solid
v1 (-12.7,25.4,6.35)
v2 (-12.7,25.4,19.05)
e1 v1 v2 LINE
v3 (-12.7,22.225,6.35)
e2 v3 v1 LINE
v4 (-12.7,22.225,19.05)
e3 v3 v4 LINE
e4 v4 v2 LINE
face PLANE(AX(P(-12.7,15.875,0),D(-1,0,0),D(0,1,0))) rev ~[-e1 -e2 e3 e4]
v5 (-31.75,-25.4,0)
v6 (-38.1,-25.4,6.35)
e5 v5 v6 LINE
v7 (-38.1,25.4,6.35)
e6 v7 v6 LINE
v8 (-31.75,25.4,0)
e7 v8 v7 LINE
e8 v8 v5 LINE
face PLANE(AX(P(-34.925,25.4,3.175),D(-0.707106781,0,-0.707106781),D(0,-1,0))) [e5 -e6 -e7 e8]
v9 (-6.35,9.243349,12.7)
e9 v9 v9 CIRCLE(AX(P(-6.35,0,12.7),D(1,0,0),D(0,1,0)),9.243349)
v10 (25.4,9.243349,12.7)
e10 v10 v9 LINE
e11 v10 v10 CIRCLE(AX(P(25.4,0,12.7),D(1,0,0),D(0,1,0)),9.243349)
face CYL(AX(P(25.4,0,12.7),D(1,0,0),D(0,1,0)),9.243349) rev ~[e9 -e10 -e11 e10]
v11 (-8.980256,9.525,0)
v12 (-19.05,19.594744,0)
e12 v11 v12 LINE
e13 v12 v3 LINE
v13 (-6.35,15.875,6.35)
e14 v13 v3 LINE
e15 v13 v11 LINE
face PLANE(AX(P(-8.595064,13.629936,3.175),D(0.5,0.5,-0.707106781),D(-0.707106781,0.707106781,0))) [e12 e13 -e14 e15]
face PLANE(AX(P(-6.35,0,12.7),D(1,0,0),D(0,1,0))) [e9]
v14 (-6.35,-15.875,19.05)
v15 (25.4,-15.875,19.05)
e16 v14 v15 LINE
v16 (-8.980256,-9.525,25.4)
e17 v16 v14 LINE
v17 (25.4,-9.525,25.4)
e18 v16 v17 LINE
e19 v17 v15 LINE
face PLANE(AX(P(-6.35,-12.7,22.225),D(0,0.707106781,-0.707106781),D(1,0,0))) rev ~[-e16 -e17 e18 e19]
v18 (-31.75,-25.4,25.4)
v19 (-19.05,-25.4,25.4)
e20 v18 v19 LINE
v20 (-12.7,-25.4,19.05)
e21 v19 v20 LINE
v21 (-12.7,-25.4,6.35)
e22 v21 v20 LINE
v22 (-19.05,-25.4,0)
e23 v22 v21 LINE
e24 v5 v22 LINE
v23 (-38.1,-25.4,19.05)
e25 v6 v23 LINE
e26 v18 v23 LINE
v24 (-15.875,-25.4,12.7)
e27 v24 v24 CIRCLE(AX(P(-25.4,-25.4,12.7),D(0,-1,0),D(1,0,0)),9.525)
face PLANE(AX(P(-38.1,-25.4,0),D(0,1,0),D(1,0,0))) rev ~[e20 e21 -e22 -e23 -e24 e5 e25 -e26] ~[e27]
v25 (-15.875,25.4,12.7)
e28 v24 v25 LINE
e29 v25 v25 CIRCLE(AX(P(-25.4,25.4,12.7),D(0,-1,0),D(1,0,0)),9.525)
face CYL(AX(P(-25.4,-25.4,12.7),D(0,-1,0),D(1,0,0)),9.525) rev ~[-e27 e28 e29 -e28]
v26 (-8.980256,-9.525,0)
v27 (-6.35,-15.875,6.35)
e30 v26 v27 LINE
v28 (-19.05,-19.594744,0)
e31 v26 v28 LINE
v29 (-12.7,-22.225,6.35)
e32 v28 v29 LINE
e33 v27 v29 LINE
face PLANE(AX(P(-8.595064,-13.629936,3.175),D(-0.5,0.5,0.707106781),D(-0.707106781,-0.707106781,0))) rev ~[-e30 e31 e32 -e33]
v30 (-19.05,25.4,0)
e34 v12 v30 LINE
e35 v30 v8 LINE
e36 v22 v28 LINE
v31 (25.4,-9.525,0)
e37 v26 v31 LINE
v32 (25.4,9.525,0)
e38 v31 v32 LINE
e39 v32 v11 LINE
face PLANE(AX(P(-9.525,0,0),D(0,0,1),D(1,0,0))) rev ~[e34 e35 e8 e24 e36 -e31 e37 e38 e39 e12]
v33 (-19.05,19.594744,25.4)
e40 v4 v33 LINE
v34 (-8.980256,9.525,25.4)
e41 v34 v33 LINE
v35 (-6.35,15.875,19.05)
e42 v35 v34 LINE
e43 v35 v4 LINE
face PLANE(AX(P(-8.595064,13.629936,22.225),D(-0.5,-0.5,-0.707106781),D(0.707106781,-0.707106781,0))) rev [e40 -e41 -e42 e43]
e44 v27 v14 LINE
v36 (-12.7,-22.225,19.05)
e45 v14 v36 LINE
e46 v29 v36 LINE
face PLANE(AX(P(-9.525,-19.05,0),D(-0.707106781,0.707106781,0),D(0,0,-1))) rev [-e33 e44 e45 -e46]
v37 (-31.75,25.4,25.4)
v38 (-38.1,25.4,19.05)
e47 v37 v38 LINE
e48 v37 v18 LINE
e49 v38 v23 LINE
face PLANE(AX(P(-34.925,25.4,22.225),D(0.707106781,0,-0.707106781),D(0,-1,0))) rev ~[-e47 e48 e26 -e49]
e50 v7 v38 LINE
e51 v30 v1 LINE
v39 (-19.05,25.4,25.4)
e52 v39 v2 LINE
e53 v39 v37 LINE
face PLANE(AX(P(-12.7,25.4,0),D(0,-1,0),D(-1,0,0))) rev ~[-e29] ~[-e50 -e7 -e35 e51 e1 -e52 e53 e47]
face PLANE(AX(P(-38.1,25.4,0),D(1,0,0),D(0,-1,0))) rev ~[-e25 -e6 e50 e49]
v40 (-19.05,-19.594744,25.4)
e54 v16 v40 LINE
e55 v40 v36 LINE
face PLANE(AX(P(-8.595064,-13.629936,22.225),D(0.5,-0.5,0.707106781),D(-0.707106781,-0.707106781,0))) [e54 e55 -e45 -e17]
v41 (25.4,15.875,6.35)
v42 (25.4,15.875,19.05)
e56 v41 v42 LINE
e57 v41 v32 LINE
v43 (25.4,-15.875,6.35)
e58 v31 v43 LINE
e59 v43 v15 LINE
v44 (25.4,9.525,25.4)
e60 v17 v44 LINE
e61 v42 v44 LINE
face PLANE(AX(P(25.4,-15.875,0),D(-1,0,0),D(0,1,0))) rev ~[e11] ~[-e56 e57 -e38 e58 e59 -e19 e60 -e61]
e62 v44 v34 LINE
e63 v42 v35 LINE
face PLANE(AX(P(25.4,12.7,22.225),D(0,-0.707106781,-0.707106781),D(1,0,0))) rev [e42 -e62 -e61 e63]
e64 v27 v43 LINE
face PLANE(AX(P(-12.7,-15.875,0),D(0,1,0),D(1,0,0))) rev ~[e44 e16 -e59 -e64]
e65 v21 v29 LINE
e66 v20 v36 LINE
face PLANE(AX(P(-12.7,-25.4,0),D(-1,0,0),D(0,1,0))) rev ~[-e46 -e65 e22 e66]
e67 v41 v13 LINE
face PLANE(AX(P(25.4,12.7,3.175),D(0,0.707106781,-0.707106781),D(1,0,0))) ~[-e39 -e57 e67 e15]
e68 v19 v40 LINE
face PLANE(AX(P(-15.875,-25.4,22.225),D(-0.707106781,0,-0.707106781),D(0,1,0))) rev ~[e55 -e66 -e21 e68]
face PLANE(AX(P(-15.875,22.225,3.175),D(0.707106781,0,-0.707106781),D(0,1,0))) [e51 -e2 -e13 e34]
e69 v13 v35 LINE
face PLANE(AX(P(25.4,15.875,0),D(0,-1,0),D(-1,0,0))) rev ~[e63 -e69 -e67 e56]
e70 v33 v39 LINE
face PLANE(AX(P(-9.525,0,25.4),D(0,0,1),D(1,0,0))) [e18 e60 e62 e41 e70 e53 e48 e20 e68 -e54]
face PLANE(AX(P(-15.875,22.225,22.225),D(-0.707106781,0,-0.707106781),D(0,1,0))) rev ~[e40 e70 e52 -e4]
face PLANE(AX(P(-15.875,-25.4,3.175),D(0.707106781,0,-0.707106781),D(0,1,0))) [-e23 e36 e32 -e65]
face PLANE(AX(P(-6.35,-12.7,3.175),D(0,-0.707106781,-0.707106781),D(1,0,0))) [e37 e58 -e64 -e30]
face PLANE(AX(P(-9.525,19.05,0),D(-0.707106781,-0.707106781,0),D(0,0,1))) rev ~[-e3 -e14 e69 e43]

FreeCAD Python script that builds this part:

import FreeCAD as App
import Part
import Sketcher
Q = App.Units.Quantity


def edges_at(feature, points):
    """Names of the edges that pass closest to the given points."""
    edges = feature.Shape.Edges
    near = lambda p: min(range(len(edges)), key=lambda i: edges[i].distToShape(Part.Vertex(*p))[0])
    return sorted({f"Edge{near(p) + 1}" for p in points})

doc = App.newDocument("Part")
body = doc.addObject("PartDesign::Body", "Body")

sketch1 = doc.addObject("Sketcher::SketchObject", "Sketch")
body.addObject(sketch1)
sketch1.AttachmentSupport = (doc.XY_Plane, [""])
sketch1.MapMode = "FlatFace"
sketch1.addGeometry([
    Part.LineSegment(App.Vector(25, 16, 0), App.Vector(-13, 16, 0)),
    Part.LineSegment(App.Vector(-13, 16, 0), App.Vector(-13, 25, 0)),
    Part.LineSegment(App.Vector(-13, 25, 0), App.Vector(-38, 25, 0)),
    Part.LineSegment(App.Vector(-38, 25, 0), App.Vector(-38, -25, 0)),
    Part.LineSegment(App.Vector(-38, -25, 0), App.Vector(-13, -25, 0)),
    Part.LineSegment(App.Vector(-13, -25, 0), App.Vector(-13, -16, 0)),
    Part.LineSegment(App.Vector(-13, -16, 0), App.Vector(25, -16, 0)),
    Part.LineSegment(App.Vector(25, -16, 0), App.Vector(25, 16, 0)),
], False)
sketch1.addConstraint([
    Sketcher.Constraint("Coincident", 0, 2, 1, 1),
    Sketcher.Constraint("Coincident", 1, 2, 2, 1),
    Sketcher.Constraint("Coincident", 2, 2, 3, 1),
    Sketcher.Constraint("Coincident", 3, 2, 4, 1),
    Sketcher.Constraint("Coincident", 4, 2, 5, 1),
    Sketcher.Constraint("Coincident", 5, 2, 6, 1),
    Sketcher.Constraint("Coincident", 6, 2, 7, 1),
    Sketcher.Constraint("Coincident", 7, 2, 0, 1),
    Sketcher.Constraint("Horizontal", 0),
    Sketcher.Constraint("Vertical", 1),
    Sketcher.Constraint("Horizontal", 2),
    Sketcher.Constraint("Vertical", 3),
    Sketcher.Constraint("Horizontal", 4),
    Sketcher.Constraint("Vertical", 5),
    Sketcher.Constraint("Horizontal", 6),
    Sketcher.Constraint("Vertical", 7),
    Sketcher.Constraint("Symmetric", 1, 2, 4, 2, -1),
    Sketcher.Constraint("Equal", 1, 5),
    Sketcher.Constraint("DistanceX", 2, 2, 2, 1, Q("1 in")),
    Sketcher.Constraint("DistanceY", 3, 2, 3, 1, Q("2 in")),
    Sketcher.Constraint("DistanceX", 0, 2, 0, 1, Q("1.5 in")),
    Sketcher.Constraint("DistanceX", -1, 1, 6, 2, Q("1 in")),
    Sketcher.Constraint("DistanceY", 7, 1, 7, 2, Q("1.25 in")),
])
pad1 = doc.addObject("PartDesign::Pad", "Pad")
body.addObject(pad1)
pad1.Profile = sketch1
pad1.Length = Q("1 in")

sketch2 = doc.addObject("Sketcher::SketchObject", "Sketch001")
body.addObject(sketch2)
sketch2.AttachmentSupport = (doc.XZ_Plane, [""])
sketch2.MapMode = "FlatFace"
sketch2.AttachmentOffset = App.Placement(App.Vector(0, 0, 1 * 25.4), App.Rotation())
sketch2.addGeometry(Part.Circle(App.Vector(-25, 13, 0), App.Vector(0, 0, 1), 10), False)
sketch2.addConstraint([
    Sketcher.Constraint("Diameter", 0, Q("0.75 in")),
    Sketcher.Constraint("DistanceX", 0, 3, -1, 1, Q("1 in")),
    Sketcher.Constraint("DistanceY", -1, 1, 0, 3, Q("0.5 in")),
])
pocket1 = doc.addObject("PartDesign::Pocket", "Pocket")
body.addObject(pocket1)
pocket1.Profile = sketch2
pocket1.Length = Q("3.59 in")

sketch3 = doc.addObject("Sketcher::SketchObject", "Sketch002")
body.addObject(sketch3)
sketch3.AttachmentSupport = (doc.YZ_Plane, [""])
sketch3.MapMode = "FlatFace"
sketch3.AttachmentOffset = App.Placement(App.Vector(0, 0, 1 * 25.4), App.Rotation())
sketch3.addGeometry(Part.Circle(App.Vector(0, 13, 0), App.Vector(0, 0, 1), 9), False)
sketch3.addConstraint([
    Sketcher.Constraint("PointOnObject", 0, 3, -2),
    Sketcher.Constraint("DistanceY", -1, 1, 0, 3, Q("0.5 in")),
    Sketcher.Constraint("Diameter", 0, Q("18.486697 mm")),
])
pocket2 = doc.addObject("PartDesign::Pocket", "Pocket001")
body.addObject(pocket2)
pocket2.Profile = sketch3
pocket2.Length = Q("1.25 in")
doc.recompute()

chamfer = doc.addObject("PartDesign::Chamfer", "Chamfer")
body.addObject(chamfer)
chamfer.Base = (pocket2, edges_at(pocket2, [(-12.7, 15.875, 12.7), (-12.7, -15.875, 12.7)]))
chamfer.Size = Q("0.25 in")
doc.recompute()

chamfer2 = doc.addObject("PartDesign::Chamfer", "Chamfer001")
body.addObject(chamfer2)
chamfer2.Base = (chamfer, edges_at(chamfer, [
    (-12.7, -23.812, 25.4),
    (-9.525, -19.05, 25.4),
    (9.525, -15.875, 25.4),
    (9.525, 15.875, 25.4),
    (-9.525, 19.05, 25.4),
    (-12.7, 23.812, 25.4),
    (-38.1, 0, 25.4),
    (9.525, 15.875, 0),
    (-9.525, 19.05, 0),
    (-12.7, 23.812, 0),
    (-38.1, 0, 0),
    (-12.7, -23.812, 0),
    (-9.525, -19.05, 0),
    (9.525, -15.875, 0),
]))
chamfer2.Size = Q("0.25 in")

doc.recompute()
